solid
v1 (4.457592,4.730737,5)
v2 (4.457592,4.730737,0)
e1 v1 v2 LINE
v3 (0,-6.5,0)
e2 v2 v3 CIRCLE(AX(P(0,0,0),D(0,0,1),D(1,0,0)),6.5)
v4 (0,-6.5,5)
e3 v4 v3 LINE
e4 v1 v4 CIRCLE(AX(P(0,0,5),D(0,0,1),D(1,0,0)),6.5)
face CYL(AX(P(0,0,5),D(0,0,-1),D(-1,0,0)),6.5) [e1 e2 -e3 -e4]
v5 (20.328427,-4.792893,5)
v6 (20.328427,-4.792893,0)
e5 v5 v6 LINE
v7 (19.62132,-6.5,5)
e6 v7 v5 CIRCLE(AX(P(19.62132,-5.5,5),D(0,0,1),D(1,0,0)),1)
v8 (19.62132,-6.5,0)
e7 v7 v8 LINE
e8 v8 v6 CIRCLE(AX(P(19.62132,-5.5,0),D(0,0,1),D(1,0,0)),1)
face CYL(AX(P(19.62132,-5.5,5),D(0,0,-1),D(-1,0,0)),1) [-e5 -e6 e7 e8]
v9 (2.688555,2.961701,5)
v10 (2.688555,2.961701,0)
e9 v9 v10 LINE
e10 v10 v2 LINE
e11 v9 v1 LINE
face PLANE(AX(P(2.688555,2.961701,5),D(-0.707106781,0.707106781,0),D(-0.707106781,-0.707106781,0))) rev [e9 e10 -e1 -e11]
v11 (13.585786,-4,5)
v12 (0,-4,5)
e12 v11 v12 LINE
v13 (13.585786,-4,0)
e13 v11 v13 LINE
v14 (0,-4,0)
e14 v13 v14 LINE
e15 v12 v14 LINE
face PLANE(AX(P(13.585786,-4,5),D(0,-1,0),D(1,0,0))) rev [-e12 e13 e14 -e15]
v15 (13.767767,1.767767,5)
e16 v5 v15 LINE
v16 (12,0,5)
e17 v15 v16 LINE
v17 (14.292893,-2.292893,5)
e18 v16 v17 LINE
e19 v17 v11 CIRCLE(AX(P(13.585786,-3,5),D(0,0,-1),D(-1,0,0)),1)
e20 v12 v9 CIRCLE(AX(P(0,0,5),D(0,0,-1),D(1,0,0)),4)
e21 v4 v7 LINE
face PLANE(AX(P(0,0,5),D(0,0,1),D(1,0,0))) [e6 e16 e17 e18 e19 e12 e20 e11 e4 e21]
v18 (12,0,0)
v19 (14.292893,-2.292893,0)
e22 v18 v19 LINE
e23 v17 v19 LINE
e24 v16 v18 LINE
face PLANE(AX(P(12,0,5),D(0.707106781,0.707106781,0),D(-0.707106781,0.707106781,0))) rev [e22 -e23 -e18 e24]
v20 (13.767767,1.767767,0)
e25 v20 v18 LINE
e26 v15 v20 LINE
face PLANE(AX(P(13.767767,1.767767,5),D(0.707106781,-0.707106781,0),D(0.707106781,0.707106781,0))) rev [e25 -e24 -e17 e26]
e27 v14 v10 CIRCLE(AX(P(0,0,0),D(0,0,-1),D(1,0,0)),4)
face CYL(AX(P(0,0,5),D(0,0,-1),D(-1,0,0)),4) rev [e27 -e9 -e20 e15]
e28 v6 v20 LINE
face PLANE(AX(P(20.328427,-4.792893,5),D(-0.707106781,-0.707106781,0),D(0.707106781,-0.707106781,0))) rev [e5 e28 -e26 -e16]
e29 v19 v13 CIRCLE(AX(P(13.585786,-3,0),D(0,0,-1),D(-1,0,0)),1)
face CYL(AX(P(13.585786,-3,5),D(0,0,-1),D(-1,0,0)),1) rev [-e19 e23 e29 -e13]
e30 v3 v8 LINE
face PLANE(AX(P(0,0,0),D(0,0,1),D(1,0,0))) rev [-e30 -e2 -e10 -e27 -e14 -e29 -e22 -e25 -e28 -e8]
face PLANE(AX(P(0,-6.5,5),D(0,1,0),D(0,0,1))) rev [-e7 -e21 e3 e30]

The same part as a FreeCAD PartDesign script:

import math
import FreeCAD as App
import Part
import Sketcher

V = App.Vector
Q = App.Units.Quantity

doc = App.newDocument("Part")
params = doc.addObject("Spreadsheet::Sheet", "Params")
for row, (alias, value) in enumerate([
    ("sketch1_radius", "1 mm"),
    ("sketch1_radius2", "4 mm"),
    ("sketch1_radius3", "6.5 mm"),
    ("sketch1_length", "2.5 mm"),
    ("pad1_length", "5 mm"),
], start=1):
    params.set(f"A{row}", alias)
    params.set(f"B{row}", "=" + value)
    params.setAlias(f"B{row}", alias)

body = doc.addObject("PartDesign::Body", "Body")

sketch1 = body.newObject("Sketcher::SketchObject", "Sketch")
sketch1.AttachmentSupport = (doc.getObject("XY_Plane"), [""])
sketch1.MapMode = "FlatFace"
sketch1.addGeometry([
    Part.LineSegment(V(0, -6.5, 0), V(19.62132, -6.5, 0)),
    Part.ArcOfCircle(Part.Circle(V(19.62132, -5.5, 0), V(0, 0, 1), 1), math.radians(-90), math.radians(45)),
    Part.LineSegment(V(20.328427, -4.792893, 0), V(13.767767, 1.767767, 0)),
    Part.LineSegment(V(13.767767, 1.767767, 0), V(12, 0, 0)),
    Part.LineSegment(V(12, 0, 0), V(14.292893, -2.292893, 0)),
    Part.ArcOfCircle(Part.Circle(V(13.585786, -3, 0), V(0, 0, 1), 1), math.radians(-90), math.radians(45)),
    Part.LineSegment(V(13.585786, -4, 0), V(0, -4, 0)),
    Part.ArcOfCircle(Part.Circle(V(0, 0, 0), V(0, 0, 1), 4), math.radians(47.767648), math.radians(270)),
    Part.LineSegment(V(2.688555, 2.961701, 0), V(4.457592, 4.730737, 0)),
    Part.ArcOfCircle(Part.Circle(V(0, 0, 0), V(0, 0, 1), 6.5), math.radians(46.702756), math.radians(270)),
], False)
sketch1.addConstraint([
    Sketcher.Constraint("Tangent", 0, 2, 1, 1),
    Sketcher.Constraint("Tangent", 1, 2, 2, 1),
    Sketcher.Constraint("Coincident", 2, 2, 3, 1),
    Sketcher.Constraint("Coincident", 3, 2, 4, 1),
    Sketcher.Constraint("Tangent", 4, 2, 5, 2),
    Sketcher.Constraint("Tangent", 5, 1, 6, 1),
    Sketcher.Constraint("Tangent", 6, 2, 7, 2),
    Sketcher.Constraint("Coincident", 7, 1, 8, 1),
    Sketcher.Constraint("Coincident", 8, 2, 9, 1),
    Sketcher.Constraint("Tangent", 9, 2, 0, 1),
    Sketcher.Constraint("Horizontal", 0),
    Sketcher.Constraint("Horizontal", 6),
    Sketcher.Constraint("Coincident", 7, 3, -1, 1),
    Sketcher.Constraint("Coincident", 9, 3, -1, 1),
    Sketcher.Constraint("Equal", 1, 5),
    Sketcher.Constraint("PointOnObject", 3, 2, -1),
    Sketcher.Constraint("Perpendicular", 2, 3),
    Sketcher.Constraint("Perpendicular", 3, 4),
    Sketcher.Constraint("Perpendicular", 4, 8),
    Sketcher.Constraint("Radius", 1, Q("1 mm")),
    Sketcher.Constraint("Radius", 7, Q("4 mm")),
    Sketcher.Constraint("Radius", 9, Q("6.5 mm")),
    Sketcher.Constraint("Angle", 2, Q("135 deg")),
    Sketcher.Constraint("DistanceX", -1, 1, 3, 2, Q("12 mm")),
    Sketcher.Constraint("Distance", 3, Q("2.5 mm")),
    Sketcher.Constraint("DistanceY", -1, 1, 7, 1, Q("2.961701 mm")),
])
sketch1.setExpression("Constraints[19]", "Params.sketch1_radius")
sketch1.setExpression("Constraints[20]", "Params.sketch1_radius2")
sketch1.setExpression("Constraints[21]", "Params.sketch1_radius3")
sketch1.setExpression("Constraints[24]", "Params.sketch1_length")
pad1 = body.newObject("PartDesign::Pad", "Pad")
pad1.Profile = sketch1
pad1.setExpression("Length", "Params.pad1_length")

doc.recompute()
